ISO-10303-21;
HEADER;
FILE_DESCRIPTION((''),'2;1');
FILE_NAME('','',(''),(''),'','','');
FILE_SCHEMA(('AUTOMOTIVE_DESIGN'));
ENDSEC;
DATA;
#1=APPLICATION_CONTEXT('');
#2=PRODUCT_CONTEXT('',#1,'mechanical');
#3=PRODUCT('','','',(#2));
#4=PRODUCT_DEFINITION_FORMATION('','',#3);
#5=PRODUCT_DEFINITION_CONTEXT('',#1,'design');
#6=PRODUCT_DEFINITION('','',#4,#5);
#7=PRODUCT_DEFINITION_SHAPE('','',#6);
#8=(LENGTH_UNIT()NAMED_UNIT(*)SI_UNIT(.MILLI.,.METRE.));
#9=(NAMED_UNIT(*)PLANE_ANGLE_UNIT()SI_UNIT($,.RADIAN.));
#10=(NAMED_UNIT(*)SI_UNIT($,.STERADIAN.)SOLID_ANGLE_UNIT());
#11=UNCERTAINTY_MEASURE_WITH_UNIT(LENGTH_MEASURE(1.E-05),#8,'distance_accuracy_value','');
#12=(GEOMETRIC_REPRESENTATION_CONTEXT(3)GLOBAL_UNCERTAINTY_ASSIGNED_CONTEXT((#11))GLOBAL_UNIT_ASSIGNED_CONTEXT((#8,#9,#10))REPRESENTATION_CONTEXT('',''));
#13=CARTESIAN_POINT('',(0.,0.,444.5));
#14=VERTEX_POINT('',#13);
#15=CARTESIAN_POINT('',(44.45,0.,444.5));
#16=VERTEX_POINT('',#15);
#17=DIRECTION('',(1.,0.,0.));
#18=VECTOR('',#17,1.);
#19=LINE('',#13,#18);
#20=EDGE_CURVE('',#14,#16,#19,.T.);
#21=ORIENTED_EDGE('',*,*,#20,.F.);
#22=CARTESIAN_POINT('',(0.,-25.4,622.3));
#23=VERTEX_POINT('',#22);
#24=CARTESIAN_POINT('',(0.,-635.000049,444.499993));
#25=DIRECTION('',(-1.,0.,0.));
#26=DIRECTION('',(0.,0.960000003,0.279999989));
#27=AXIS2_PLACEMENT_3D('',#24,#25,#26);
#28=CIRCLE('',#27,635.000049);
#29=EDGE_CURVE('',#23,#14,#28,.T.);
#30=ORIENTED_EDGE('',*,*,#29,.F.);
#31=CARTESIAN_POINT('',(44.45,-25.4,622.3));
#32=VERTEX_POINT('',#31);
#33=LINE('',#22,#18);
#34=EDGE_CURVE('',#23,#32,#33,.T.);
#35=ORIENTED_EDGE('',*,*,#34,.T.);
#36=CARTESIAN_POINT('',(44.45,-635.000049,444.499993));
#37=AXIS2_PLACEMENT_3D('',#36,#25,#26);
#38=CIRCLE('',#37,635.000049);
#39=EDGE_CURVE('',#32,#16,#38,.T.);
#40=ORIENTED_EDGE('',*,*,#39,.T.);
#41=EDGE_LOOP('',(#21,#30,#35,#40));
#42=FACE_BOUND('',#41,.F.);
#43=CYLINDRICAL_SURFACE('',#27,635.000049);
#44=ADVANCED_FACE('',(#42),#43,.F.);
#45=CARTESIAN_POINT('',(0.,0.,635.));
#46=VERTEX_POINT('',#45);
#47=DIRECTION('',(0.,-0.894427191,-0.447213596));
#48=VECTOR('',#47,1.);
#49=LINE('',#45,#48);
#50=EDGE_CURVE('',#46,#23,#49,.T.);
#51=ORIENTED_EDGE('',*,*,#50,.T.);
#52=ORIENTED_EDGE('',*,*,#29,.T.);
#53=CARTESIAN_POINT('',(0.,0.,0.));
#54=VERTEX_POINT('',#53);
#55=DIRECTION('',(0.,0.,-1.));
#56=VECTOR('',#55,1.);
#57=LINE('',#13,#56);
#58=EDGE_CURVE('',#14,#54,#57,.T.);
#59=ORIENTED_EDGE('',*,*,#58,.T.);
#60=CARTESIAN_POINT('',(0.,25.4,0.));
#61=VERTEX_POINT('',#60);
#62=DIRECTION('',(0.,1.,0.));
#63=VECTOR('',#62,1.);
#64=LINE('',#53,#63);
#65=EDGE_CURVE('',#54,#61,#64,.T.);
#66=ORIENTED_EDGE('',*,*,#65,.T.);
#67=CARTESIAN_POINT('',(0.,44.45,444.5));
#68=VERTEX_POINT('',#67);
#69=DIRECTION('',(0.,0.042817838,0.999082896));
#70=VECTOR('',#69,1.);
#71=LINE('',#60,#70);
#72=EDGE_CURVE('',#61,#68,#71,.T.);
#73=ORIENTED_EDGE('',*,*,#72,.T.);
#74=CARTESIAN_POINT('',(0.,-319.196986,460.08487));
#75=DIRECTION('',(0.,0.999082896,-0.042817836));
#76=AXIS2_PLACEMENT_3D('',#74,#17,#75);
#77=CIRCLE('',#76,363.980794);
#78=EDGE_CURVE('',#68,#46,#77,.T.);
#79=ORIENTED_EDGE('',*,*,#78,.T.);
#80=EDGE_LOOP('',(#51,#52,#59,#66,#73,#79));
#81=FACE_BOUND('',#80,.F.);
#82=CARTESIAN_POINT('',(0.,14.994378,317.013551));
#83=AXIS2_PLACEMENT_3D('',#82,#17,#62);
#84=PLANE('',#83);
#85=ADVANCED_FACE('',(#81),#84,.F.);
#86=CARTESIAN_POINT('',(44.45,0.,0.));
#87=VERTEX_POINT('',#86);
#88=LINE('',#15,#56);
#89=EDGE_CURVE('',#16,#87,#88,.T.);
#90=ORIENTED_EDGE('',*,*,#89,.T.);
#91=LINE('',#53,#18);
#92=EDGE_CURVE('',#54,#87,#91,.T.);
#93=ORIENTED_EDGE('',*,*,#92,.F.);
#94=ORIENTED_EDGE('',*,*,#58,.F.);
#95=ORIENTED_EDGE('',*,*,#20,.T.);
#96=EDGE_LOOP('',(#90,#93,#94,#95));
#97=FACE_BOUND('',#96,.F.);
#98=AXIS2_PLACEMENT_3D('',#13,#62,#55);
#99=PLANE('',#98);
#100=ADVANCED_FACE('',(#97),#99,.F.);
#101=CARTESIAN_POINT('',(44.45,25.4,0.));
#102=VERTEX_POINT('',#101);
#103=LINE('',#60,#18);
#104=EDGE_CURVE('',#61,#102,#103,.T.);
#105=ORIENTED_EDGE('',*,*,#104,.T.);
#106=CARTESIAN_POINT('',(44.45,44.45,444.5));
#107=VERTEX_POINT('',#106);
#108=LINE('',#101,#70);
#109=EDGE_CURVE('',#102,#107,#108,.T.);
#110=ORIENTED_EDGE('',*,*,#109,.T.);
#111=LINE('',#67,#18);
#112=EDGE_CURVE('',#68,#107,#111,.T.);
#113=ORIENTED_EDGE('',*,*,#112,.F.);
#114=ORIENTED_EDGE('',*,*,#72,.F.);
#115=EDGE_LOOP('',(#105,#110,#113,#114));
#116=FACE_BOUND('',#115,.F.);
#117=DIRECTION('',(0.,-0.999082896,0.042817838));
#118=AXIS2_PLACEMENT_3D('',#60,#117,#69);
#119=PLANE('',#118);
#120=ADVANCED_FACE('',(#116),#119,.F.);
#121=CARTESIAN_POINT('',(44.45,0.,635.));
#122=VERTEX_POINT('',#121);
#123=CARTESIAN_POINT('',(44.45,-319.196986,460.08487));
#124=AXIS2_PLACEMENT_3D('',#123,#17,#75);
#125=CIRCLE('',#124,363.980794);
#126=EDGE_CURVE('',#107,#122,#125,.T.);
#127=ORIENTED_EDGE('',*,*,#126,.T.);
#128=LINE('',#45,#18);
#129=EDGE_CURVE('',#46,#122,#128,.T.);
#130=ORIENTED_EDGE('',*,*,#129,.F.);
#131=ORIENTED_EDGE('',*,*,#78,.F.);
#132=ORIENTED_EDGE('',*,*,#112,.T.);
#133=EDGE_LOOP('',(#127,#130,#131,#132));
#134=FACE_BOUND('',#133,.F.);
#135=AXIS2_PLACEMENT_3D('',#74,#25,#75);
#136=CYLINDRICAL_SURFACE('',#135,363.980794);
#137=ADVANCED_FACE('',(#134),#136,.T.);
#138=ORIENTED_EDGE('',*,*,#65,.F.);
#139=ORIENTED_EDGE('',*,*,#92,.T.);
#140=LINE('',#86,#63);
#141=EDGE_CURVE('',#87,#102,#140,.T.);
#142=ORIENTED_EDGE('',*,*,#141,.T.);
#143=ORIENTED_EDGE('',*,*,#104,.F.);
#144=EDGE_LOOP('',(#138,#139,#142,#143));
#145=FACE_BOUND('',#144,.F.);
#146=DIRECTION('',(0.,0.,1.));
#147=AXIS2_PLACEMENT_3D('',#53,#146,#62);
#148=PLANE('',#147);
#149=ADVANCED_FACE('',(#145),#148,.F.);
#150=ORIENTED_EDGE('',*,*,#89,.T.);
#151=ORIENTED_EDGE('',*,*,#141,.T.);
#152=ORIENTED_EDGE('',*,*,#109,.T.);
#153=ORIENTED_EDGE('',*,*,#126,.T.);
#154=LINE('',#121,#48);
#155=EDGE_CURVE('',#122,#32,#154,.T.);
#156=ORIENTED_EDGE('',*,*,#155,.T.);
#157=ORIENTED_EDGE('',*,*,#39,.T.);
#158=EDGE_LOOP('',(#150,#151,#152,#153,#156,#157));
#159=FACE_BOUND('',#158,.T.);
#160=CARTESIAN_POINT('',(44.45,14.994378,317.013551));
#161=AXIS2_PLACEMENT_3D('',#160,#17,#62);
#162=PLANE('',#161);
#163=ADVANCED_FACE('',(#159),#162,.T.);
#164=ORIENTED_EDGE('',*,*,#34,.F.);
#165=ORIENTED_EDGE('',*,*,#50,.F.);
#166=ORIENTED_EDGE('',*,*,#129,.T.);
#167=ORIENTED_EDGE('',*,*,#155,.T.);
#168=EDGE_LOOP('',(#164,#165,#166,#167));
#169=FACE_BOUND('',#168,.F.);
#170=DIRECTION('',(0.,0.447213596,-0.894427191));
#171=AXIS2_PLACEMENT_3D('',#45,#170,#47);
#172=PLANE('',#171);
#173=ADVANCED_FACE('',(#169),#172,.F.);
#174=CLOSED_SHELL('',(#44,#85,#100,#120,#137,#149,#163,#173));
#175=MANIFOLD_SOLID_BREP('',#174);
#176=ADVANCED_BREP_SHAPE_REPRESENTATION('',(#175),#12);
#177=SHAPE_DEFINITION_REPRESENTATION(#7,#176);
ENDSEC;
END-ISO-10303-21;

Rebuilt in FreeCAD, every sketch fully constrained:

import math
import FreeCAD as App
import Part
import Sketcher
Q = App.Units.Quantity

doc = App.newDocument("Part")
body = doc.addObject("PartDesign::Body", "Body")

# Sketch on YZ plane
sketch1 = body.newObject("Sketcher::SketchObject", "Sketch")
sketch1.AttachmentSupport = (doc.getObject("YZ_Plane"), [""])
sketch1.MapMode = "FlatFace"
sketch1.addGeometry([
    Part.LineSegment(App.Vector(0, 0, 0), App.Vector(25.4, 0, 0)),  # 0
    Part.LineSegment(App.Vector(25.4, 0, 0), App.Vector(44.45, 444.5, 0)),  # 1
    Part.ArcOfCircle(Part.Circle(App.Vector(-319.196986, 460.08487, 0), App.Vector(0, 0, 1), 363.980794), math.radians(-2.454032), math.radians(28.722076)),  # 2
    Part.LineSegment(App.Vector(0, 635, 0), App.Vector(-25.4, 622.3, 0)),  # 3
    Part.ArcOfCircle(Part.Circle(App.Vector(-635.000049, 444.499993, 0), App.Vector(0, 0, 1), 635.000049), math.radians(0.000001), math.radians(16.260204)),  # 4
    Part.LineSegment(App.Vector(0, 444.5, 0), App.Vector(0, 0, 0)),  # 5
], False)
sketch1.addConstraint([
    Sketcher.Constraint("Coincident", 0, 2, 1, 1),
    Sketcher.Constraint("Coincident", 1, 2, 2, 1),
    Sketcher.Constraint("Coincident", 2, 2, 3, 1),
    Sketcher.Constraint("Coincident", 3, 2, 4, 2),
    Sketcher.Constraint("Coincident", 4, 1, 5, 1),
    Sketcher.Constraint("Coincident", 5, 2, 0, 1),
    Sketcher.Constraint("Horizontal", 0),
    Sketcher.Constraint("Vertical", 5),
    Sketcher.Constraint("Coincident", 5, 2, -1, 1),
    Sketcher.Constraint("PointOnObject", 2, 2, -2),
    Sketcher.Constraint("DistanceX", 0, 1, 0, 2, Q("1 in")),
    Sketcher.Constraint("DistanceY", 5, 2, 5, 1, Q("17.5 in")),
    Sketcher.Constraint("DistanceY", -1, 1, 2, 2, Q("25 in")),
    Sketcher.Constraint("DistanceX", 3, 2, -1, 1, Q("1 in")),
    Sketcher.Constraint("DistanceY", 1, 2, 3, 2, Q("7 in")),
    Sketcher.Constraint("DistanceY", -1, 1, 1, 2, Q("17.5 in")),
    Sketcher.Constraint("DistanceX", -1, 1, 1, 2, Q("1.75 in")),
    Sketcher.Constraint("Radius", 4, Q("635.000049 mm")),
    Sketcher.Constraint("Radius", 2, Q("363.980794 mm")),
])
pad1 = body.newObject("PartDesign::Pad", "Pad")
pad1.Profile = sketch1
pad1.Length = Q("1.75 in")

doc.recompute()
